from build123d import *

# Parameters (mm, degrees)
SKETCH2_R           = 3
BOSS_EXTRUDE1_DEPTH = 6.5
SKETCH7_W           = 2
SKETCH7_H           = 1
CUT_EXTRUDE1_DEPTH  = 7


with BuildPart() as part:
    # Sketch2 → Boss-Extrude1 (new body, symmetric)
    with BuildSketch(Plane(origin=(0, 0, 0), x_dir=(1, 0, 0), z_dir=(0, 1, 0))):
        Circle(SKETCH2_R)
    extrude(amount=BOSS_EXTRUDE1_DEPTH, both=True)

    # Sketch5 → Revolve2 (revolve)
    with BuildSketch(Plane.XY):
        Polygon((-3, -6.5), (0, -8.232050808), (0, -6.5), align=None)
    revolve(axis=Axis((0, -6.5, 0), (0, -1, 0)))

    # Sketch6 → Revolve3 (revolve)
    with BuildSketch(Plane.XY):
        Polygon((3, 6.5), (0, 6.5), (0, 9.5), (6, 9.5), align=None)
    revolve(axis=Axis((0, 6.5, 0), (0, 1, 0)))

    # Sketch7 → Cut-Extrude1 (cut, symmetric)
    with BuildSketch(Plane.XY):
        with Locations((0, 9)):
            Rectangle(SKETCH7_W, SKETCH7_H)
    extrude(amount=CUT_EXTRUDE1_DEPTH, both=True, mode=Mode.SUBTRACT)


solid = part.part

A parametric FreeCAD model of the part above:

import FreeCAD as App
import Part
import Sketcher
Q = App.Units.Quantity

doc = App.newDocument("Part")
body = doc.addObject("PartDesign::Body", "Body")

sketch1 = body.newObject("Sketcher::SketchObject", "Sketch")
sketch1.AttachmentSupport = (doc.getObject("XZ_Plane"), [""])
sketch1.MapMode = "FlatFace"
sketch1.addGeometry(Part.Circle(App.Vector(0, 0, 0), App.Vector(0, 0, 1), 3), False)
sketch1.addConstraint(Sketcher.Constraint("Coincident", 0, 3, -1, 1))
sketch1.addConstraint(Sketcher.Constraint("Diameter", 0, Q("6 mm")))
pad1 = body.newObject("PartDesign::Pad", "Pad")
pad1.Profile = sketch1
pad1.Length = 13
pad1.Midplane = True

sketch2 = body.newObject("Sketcher::SketchObject", "Sketch001")
sketch2.AttachmentSupport = (doc.getObject("XY_Plane"), [""])
sketch2.MapMode = "FlatFace"
sketch2.addGeometry(Part.LineSegment(App.Vector(-3, -6.5, 0), App.Vector(0, -8.2, 0)), False)
sketch2.addGeometry(Part.LineSegment(App.Vector(0, -8.2, 0), App.Vector(0, -6.5, 0)), False)
sketch2.addGeometry(Part.LineSegment(App.Vector(0, -6.5, 0), App.Vector(-3, -6.5, 0)), False)
sketch2.addConstraint(Sketcher.Constraint("Coincident", 0, 2, 1, 1))
sketch2.addConstraint(Sketcher.Constraint("Coincident", 1, 2, 2, 1))
sketch2.addConstraint(Sketcher.Constraint("Coincident", 2, 2, 0, 1))
sketch2.addConstraint(Sketcher.Constraint("Vertical", 1))
sketch2.addConstraint(Sketcher.Constraint("Horizontal", 2))
sketch2.addConstraint(Sketcher.Constraint("PointOnObject", 0, 2, -2))
sketch2.addConstraint(Sketcher.Constraint("DistanceX", 2, 2, 2, 1, Q("3 mm")))
sketch2.addConstraint(Sketcher.Constraint("Angle", 0, Q("-30 deg")))
sketch2.addConstraint(Sketcher.Constraint("DistanceY", 1, 2, -1, 1, Q("6.5 mm")))
revolution = body.newObject("PartDesign::Revolution", "Revolution")
revolution.Profile = sketch2
revolution.ReferenceAxis = (sketch2, ["V_Axis"])
revolution.Angle = 360

sketch3 = body.newObject("Sketcher::SketchObject", "Sketch002")
sketch3.AttachmentSupport = (doc.getObject("XY_Plane"), [""])
sketch3.MapMode = "FlatFace"
sketch3.addGeometry(Part.LineSegment(App.Vector(0, 6.5, 0), App.Vector(3, 6.5, 0)), False)
sketch3.addGeometry(Part.LineSegment(App.Vector(3, 6.5, 0), App.Vector(6, 9.5, 0)), False)
sketch3.addGeometry(Part.LineSegment(App.Vector(6, 9.5, 0), App.Vector(0, 9.5, 0)), False)
sketch3.addGeometry(Part.LineSegment(App.Vector(0, 9.5, 0), App.Vector(0, 6.5, 0)), False)
sketch3.addConstraint(Sketcher.Constraint("Coincident", 0, 2, 1, 1))
sketch3.addConstraint(Sketcher.Constraint("Coincident", 1, 2, 2, 1))
sketch3.addConstraint(Sketcher.Constraint("Coincident", 2, 2, 3, 1))
sketch3.addConstraint(Sketcher.Constraint("Coincident", 3, 2, 0, 1))
sketch3.addConstraint(Sketcher.Constraint("Horizontal", 0))
sketch3.addConstraint(Sketcher.Constraint("Horizontal", 2))
sketch3.addConstraint(Sketcher.Constraint("Vertical", 3))
sketch3.addConstraint(Sketcher.Constraint("PointOnObject", 2, 2, -2))
sketch3.addConstraint(Sketcher.Constraint("Equal", 0, 3))
sketch3.addConstraint(Sketcher.Constraint("DistanceX", 0, 1, 0, 2, Q("3 mm")))
sketch3.addConstraint(Sketcher.Constraint("DistanceX", 2, 2, 2, 1, Q("6 mm")))
sketch3.addConstraint(Sketcher.Constraint("DistanceY", -1, 1, 0, 2, Q("6.5 mm")))
revolution2 = body.newObject("PartDesign::Revolution", "Revolution001")
revolution2.Profile = sketch3
revolution2.ReferenceAxis = (sketch3, ["V_Axis"])
revolution2.Angle = 360

sketch4 = body.newObject("Sketcher::SketchObject", "Sketch003")
sketch4.AttachmentSupport = (doc.getObject("XY_Plane"), [""])
sketch4.MapMode = "FlatFace"
sketch4.addGeometry(Part.LineSegment(App.Vector(-1, 9.5, 0), App.Vector(-1, 8.5, 0)), False)
sketch4.addGeometry(Part.LineSegment(App.Vector(-1, 8.5, 0), App.Vector(1, 8.5, 0)), False)
sketch4.addGeometry(Part.LineSegment(App.Vector(1, 8.5, 0), App.Vector(1, 9.5, 0)), False)
sketch4.addGeometry(Part.LineSegment(App.Vector(1, 9.5, 0), App.Vector(-1, 9.5, 0)), False)
sketch4.addConstraint(Sketcher.Constraint("Coincident", 0, 2, 1, 1))
sketch4.addConstraint(Sketcher.Constraint("Coincident", 1, 2, 2, 1))
sketch4.addConstraint(Sketcher.Constraint("Coincident", 2, 2, 3, 1))
sketch4.addConstraint(Sketcher.Constraint("Coincident", 3, 2, 0, 1))
sketch4.addConstraint(Sketcher.Constraint("Vertical", 0))
sketch4.addConstraint(Sketcher.Constraint("Horizontal", 1))
sketch4.addConstraint(Sketcher.Constraint("Vertical", 2))
sketch4.addConstraint(Sketcher.Constraint("Horizontal", 3))
sketch4.addConstraint(Sketcher.Constraint("DistanceX", 1, 1, 1, 2, Q("2 mm")))
sketch4.addConstraint(Sketcher.Constraint("DistanceY", 0, 2, 0, 1, Q("1 mm")))
sketch4.addConstraint(Sketcher.Constraint("DistanceX", 0, 2, -1, 1, Q("1 mm")))
sketch4.addConstraint(Sketcher.Constraint("DistanceY", -1, 1, 0, 2, Q("8.5 mm")))
pocket1 = body.newObject("PartDesign::Pocket", "Pocket")
pocket1.Profile = sketch4
pocket1.Length = 14
pocket1.Midplane = True

doc.recompute()
